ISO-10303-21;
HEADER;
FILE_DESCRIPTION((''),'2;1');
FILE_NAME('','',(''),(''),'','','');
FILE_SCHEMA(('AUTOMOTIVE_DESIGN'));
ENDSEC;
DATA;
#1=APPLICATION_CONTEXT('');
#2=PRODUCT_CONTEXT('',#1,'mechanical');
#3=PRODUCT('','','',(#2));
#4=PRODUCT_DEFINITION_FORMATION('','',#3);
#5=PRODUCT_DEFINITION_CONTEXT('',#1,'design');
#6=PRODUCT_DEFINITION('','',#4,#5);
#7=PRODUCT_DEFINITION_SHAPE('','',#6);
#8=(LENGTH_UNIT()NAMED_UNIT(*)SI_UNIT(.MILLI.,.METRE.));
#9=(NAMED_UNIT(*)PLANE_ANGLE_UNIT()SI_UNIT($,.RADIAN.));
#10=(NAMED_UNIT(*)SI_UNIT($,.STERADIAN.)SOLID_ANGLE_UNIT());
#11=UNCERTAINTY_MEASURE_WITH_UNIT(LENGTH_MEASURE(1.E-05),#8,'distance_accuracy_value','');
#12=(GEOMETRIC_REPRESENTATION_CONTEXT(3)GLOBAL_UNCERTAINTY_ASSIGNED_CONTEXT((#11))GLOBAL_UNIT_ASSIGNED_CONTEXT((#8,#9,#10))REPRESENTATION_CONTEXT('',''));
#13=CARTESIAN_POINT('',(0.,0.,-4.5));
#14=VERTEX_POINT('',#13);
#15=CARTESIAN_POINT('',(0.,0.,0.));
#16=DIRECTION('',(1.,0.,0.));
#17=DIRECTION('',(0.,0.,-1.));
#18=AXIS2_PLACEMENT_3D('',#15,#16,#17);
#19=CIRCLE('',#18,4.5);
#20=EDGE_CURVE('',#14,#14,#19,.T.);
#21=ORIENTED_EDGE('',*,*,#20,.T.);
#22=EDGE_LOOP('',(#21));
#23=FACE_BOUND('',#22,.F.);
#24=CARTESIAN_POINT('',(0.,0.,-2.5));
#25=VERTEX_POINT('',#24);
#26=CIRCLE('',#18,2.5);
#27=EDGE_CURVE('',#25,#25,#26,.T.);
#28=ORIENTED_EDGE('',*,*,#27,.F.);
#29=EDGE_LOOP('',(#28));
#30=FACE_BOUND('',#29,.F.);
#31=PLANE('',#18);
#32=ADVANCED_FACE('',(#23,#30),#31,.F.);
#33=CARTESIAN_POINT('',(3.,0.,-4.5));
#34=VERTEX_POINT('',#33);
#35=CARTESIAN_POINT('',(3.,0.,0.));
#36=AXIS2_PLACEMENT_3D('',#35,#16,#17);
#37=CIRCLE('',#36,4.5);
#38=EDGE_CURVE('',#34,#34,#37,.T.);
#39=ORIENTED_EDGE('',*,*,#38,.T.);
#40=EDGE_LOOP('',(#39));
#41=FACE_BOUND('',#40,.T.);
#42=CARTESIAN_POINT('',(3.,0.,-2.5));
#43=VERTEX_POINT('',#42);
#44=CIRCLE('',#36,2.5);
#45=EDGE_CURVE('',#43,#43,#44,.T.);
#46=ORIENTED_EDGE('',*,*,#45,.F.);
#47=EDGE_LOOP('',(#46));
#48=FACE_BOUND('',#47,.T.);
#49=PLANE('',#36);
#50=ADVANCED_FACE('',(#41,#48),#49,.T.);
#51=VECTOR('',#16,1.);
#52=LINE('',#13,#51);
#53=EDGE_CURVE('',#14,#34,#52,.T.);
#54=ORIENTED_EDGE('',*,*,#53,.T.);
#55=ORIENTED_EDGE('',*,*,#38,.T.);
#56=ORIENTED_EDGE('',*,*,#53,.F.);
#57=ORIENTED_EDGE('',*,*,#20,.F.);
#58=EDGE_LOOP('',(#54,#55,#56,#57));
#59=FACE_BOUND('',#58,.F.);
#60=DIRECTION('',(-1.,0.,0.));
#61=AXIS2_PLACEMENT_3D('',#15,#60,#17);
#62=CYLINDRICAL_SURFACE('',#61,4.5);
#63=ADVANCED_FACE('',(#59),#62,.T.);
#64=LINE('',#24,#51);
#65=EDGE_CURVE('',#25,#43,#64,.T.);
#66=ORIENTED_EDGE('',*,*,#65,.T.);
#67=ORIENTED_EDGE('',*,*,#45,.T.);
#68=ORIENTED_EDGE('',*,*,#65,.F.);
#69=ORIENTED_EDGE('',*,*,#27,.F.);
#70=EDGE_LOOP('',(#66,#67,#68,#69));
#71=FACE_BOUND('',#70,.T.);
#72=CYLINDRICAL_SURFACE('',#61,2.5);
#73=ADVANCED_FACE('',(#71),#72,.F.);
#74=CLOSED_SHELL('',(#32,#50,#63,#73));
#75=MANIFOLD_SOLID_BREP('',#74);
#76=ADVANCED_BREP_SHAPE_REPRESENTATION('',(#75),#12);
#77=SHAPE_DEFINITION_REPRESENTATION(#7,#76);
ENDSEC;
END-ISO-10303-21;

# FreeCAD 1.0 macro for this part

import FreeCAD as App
import Part
import Sketcher

V = App.Vector
Q = App.Units.Quantity

doc = App.newDocument("Part")
body = doc.addObject("PartDesign::Body", "Body")

# Sketch on YZ plane
sketch1 = body.newObject("Sketcher::SketchObject", "Sketch")
sketch1.AttachmentSupport = (doc.getObject("YZ_Plane"), [""])
sketch1.MapMode = "FlatFace"
sketch1.addGeometry(Part.Circle(V(0, 0, 0), V(0, 0, 1), 4.5), False)
sketch1.addGeometry(Part.Circle(V(0, 0, 0), V(0, 0, 1), 2.5), False)
sketch1.addConstraint(Sketcher.Constraint("Coincident", 0, 3, -1, 1))
sketch1.addConstraint(Sketcher.Constraint("Coincident", 1, 3, -1, 1))
sketch1.addConstraint(Sketcher.Constraint("Diameter", 0, Q("9 mm")))
sketch1.addConstraint(Sketcher.Constraint("Diameter", 1, Q("5 mm")))
pad1 = body.newObject("PartDesign::Pad", "Pad")
pad1.Profile = sketch1
pad1.Length = 3

doc.recompute()
